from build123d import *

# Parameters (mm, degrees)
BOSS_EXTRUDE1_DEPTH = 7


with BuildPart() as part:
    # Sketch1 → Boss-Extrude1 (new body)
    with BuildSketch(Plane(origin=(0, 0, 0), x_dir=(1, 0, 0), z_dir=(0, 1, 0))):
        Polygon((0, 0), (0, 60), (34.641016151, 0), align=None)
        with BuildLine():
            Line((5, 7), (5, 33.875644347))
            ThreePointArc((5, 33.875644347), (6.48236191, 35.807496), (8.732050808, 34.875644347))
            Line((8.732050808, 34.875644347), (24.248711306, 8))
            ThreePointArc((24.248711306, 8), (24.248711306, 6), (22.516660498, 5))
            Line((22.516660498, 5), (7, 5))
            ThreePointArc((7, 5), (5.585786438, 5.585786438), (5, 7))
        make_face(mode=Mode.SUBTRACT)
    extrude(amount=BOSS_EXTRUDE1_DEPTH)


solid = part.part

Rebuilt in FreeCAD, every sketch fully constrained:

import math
import FreeCAD as App
import Part
import Sketcher
Q = App.Units.Quantity

doc = App.newDocument("Part")
params = doc.addObject("Spreadsheet::Sheet", "Params")
for row, (alias, value) in enumerate([
    ("sketch1_radius", "2 mm"),
    ("sketch1_height", "60 mm"),
    ("pad1_length", "7 mm"),
], start=1):
    params.set(f"A{row}", alias)
    params.set(f"B{row}", "=" + value)
    params.setAlias(f"B{row}", alias)

body = doc.addObject("PartDesign::Body", "Body")

sketch1 = body.newObject("Sketcher::SketchObject", "Sketch")
sketch1.AttachmentSupport = (doc.getObject("XZ_Plane"), [""])
sketch1.MapMode = "FlatFace"
sketch1.addGeometry([
    Part.LineSegment(App.Vector(0, -60, 0), App.Vector(0, 0, 0)),
    Part.LineSegment(App.Vector(0, 0, 0), App.Vector(34.641016, 0, 0)),
    Part.LineSegment(App.Vector(34.641016, 0, 0), App.Vector(0, -60, 0)),
    Part.LineSegment(App.Vector(5, -7, 0), App.Vector(5, -33.875644, 0)),
    Part.ArcOfCircle(Part.Circle(App.Vector(7, -33.875644, 0), App.Vector(0, 0, 1), 2), math.radians(180), math.radians(330)),
    Part.LineSegment(App.Vector(8.732051, -34.875644, 0), App.Vector(24.248711, -8, 0)),
    Part.ArcOfCircle(Part.Circle(App.Vector(22.51666, -7, 0), App.Vector(0, 0, 1), 2), math.radians(-30), math.radians(90)),
    Part.LineSegment(App.Vector(22.51666, -5, 0), App.Vector(7, -5, 0)),
    Part.ArcOfCircle(Part.Circle(App.Vector(7, -7, 0), App.Vector(0, 0, 1), 2), math.radians(90), math.radians(180)),
], False)
sketch1.addConstraint([
    Sketcher.Constraint("Coincident", 0, 2, 1, 1),
    Sketcher.Constraint("Coincident", 1, 2, 2, 1),
    Sketcher.Constraint("Coincident", 2, 2, 0, 1),
    Sketcher.Constraint("Tangent", 3, 2, 4, 1),
    Sketcher.Constraint("Tangent", 4, 2, 5, 1),
    Sketcher.Constraint("Tangent", 5, 2, 6, 1),
    Sketcher.Constraint("Tangent", 6, 2, 7, 1),
    Sketcher.Constraint("Tangent", 7, 2, 8, 1),
    Sketcher.Constraint("Tangent", 8, 2, 3, 1),
    Sketcher.Constraint("Vertical", 0),
    Sketcher.Constraint("Horizontal", 1),
    Sketcher.Constraint("Vertical", 3),
    Sketcher.Constraint("Horizontal", 7),
    Sketcher.Constraint("Coincident", 0, 2, -1, 1),
    Sketcher.Constraint("Equal", 4, 6),
    Sketcher.Constraint("Equal", 6, 8),
    Sketcher.Constraint("Parallel", 2, 5),
    Sketcher.Constraint("Radius", 4, 2.0),
    Sketcher.Constraint("DistanceY", 0, 1, 0, 2, 60.0),
    Sketcher.Constraint("Angle", 2, Q("-120 deg")),
    Sketcher.Constraint("DistanceX", -1, 1, 4, 3, 7.0),
    Sketcher.Constraint("DistanceY", 6, 3, -1, 1, 7.0),
    Sketcher.Constraint("DistanceX", 7, 2, 7, 1, 15.51666),
])
sketch1.setExpression("Constraints[17]", "Params.sketch1_radius")
sketch1.setExpression("Constraints[18]", "Params.sketch1_height")
pad1 = body.newObject("PartDesign::Pad", "Pad")
pad1.Profile = sketch1
pad1.setExpression("Length", "Params.pad1_length")
pad1.Reversed = True

doc.recompute()
